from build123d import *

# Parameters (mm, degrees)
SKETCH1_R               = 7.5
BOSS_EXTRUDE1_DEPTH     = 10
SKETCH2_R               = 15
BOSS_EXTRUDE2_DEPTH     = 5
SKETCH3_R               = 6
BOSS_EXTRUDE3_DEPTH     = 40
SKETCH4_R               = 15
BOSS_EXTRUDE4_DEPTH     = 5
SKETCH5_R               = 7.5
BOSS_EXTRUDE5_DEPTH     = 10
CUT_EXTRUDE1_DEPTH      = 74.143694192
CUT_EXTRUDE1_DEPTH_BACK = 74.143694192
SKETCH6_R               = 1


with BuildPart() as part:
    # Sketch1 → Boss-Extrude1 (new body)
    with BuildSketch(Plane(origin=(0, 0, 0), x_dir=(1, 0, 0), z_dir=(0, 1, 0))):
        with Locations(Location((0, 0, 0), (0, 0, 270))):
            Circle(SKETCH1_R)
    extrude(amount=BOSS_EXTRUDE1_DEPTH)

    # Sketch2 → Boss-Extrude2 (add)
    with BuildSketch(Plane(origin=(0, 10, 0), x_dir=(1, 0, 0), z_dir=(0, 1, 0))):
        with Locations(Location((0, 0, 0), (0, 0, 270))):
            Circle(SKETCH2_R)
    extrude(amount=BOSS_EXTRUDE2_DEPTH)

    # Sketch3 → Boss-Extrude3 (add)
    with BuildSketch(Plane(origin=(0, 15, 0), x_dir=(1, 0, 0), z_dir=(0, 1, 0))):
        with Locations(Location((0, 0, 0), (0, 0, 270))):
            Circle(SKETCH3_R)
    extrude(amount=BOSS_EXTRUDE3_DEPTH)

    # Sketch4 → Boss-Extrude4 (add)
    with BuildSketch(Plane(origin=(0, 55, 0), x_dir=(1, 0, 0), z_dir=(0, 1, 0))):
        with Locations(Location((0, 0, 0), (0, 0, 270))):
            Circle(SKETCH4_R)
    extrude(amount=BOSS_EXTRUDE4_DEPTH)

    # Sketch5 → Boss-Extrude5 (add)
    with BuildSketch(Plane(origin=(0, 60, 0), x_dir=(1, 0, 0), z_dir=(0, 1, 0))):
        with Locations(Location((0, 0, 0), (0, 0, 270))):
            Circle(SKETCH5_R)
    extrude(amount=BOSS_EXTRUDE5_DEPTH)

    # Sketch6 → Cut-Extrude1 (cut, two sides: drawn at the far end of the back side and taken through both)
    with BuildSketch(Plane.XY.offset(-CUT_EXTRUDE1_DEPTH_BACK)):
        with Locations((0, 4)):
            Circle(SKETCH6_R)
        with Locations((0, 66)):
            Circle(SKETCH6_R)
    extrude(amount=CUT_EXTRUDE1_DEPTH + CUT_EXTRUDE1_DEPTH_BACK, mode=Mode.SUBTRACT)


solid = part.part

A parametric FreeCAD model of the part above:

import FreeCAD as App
import Part
import Sketcher
Q = App.Units.Quantity

doc = App.newDocument("Part")
body = doc.addObject("PartDesign::Body", "Body")

# Sketch on XZ plane
sketch1 = doc.addObject("Sketcher::SketchObject", "Sketch")
body.addObject(sketch1)
sketch1.AttachmentSupport = (doc.XZ_Plane, [""])
sketch1.MapMode = "FlatFace"
sketch1.addGeometry(Part.Circle(App.Vector(0, 0, 0), App.Vector(0, 0, 1), 8), False)
sketch1.addConstraint([
    Sketcher.Constraint("Coincident", 0, 3, -1, 1),
    Sketcher.Constraint("Diameter", 0, Q("15 mm")),
])
pad1 = doc.addObject("PartDesign::Pad", "Pad")
body.addObject(pad1)
pad1.Profile = sketch1
pad1.Length = 10
pad1.Reversed = True

# Sketch on XZ plane
sketch2 = doc.addObject("Sketcher::SketchObject", "Sketch001")
body.addObject(sketch2)
sketch2.AttachmentSupport = (doc.XZ_Plane, [""])
sketch2.MapMode = "FlatFace"
sketch2.AttachmentOffset = App.Placement(App.Vector(0, 0, -10), App.Rotation())
sketch2.addGeometry(Part.Circle(App.Vector(0, 0, 0), App.Vector(0, 0, 1), 15), False)
sketch2.addConstraint([
    Sketcher.Constraint("Coincident", 0, 3, -1, 1),
    Sketcher.Constraint("Diameter", 0, Q("30 mm")),
])
pad2 = doc.addObject("PartDesign::Pad", "Pad001")
body.addObject(pad2)
pad2.Profile = sketch2
pad2.Length = 5
pad2.Reversed = True

# Sketch on XZ plane
sketch3 = doc.addObject("Sketcher::SketchObject", "Sketch002")
body.addObject(sketch3)
sketch3.AttachmentSupport = (doc.XZ_Plane, [""])
sketch3.MapMode = "FlatFace"
sketch3.AttachmentOffset = App.Placement(App.Vector(0, 0, -15), App.Rotation())
sketch3.addGeometry(Part.Circle(App.Vector(0, 0, 0), App.Vector(0, 0, 1), 6), False)
sketch3.addConstraint([
    Sketcher.Constraint("Coincident", 0, 3, -1, 1),
    Sketcher.Constraint("Diameter", 0, Q("12 mm")),
])
pad3 = doc.addObject("PartDesign::Pad", "Pad002")
body.addObject(pad3)
pad3.Profile = sketch3
pad3.Length = 40
pad3.Reversed = True

# Sketch on XZ plane
sketch4 = doc.addObject("Sketcher::SketchObject", "Sketch003")
body.addObject(sketch4)
sketch4.AttachmentSupport = (doc.XZ_Plane, [""])
sketch4.MapMode = "FlatFace"
sketch4.AttachmentOffset = App.Placement(App.Vector(0, 0, -55), App.Rotation())
sketch4.addGeometry(Part.Circle(App.Vector(0, 0, 0), App.Vector(0, 0, 1), 15), False)
sketch4.addConstraint([
    Sketcher.Constraint("Coincident", 0, 3, -1, 1),
    Sketcher.Constraint("Diameter", 0, Q("30 mm")),
])
pad4 = doc.addObject("PartDesign::Pad", "Pad003")
body.addObject(pad4)
pad4.Profile = sketch4
pad4.Length = 5
pad4.Reversed = True

# Sketch on XZ plane
sketch5 = doc.addObject("Sketcher::SketchObject", "Sketch004")
body.addObject(sketch5)
sketch5.AttachmentSupport = (doc.XZ_Plane, [""])
sketch5.MapMode = "FlatFace"
sketch5.AttachmentOffset = App.Placement(App.Vector(0, 0, -60), App.Rotation())
sketch5.addGeometry(Part.Circle(App.Vector(0, 0, 0), App.Vector(0, 0, 1), 8), False)
sketch5.addConstraint([
    Sketcher.Constraint("Coincident", 0, 3, -1, 1),
    Sketcher.Constraint("Diameter", 0, Q("15 mm")),
])
pad5 = doc.addObject("PartDesign::Pad", "Pad004")
body.addObject(pad5)
pad5.Profile = sketch5
pad5.Length = 10
pad5.Reversed = True

# Sketch on XY plane
sketch6 = doc.addObject("Sketcher::SketchObject", "Sketch005")
body.addObject(sketch6)
sketch6.AttachmentSupport = (doc.XY_Plane, [""])
sketch6.MapMode = "FlatFace"
sketch6.addGeometry([
    Part.Circle(App.Vector(0, 4, 0), App.Vector(0, 0, 1), 1),
    Part.Circle(App.Vector(0, 66, 0), App.Vector(0, 0, 1), 1),
], False)
sketch6.addConstraint([
    Sketcher.Constraint("Equal", 0, 1),
    Sketcher.Constraint("PointOnObject", 0, 3, -2),
    Sketcher.Constraint("PointOnObject", 1, 3, -2),
    Sketcher.Constraint("Diameter", 0, Q("2 mm")),
    Sketcher.Constraint("DistanceY", -1, 1, 0, 3, Q("4 mm")),
    Sketcher.Constraint("DistanceY", -1, 1, 1, 3, Q("66 mm")),
])
pocket1 = doc.addObject("PartDesign::Pocket", "Pocket")
body.addObject(pocket1)
pocket1.Profile = sketch6
pocket1.Type = "ThroughAll"
pocket1.Midplane = True

doc.recompute()
